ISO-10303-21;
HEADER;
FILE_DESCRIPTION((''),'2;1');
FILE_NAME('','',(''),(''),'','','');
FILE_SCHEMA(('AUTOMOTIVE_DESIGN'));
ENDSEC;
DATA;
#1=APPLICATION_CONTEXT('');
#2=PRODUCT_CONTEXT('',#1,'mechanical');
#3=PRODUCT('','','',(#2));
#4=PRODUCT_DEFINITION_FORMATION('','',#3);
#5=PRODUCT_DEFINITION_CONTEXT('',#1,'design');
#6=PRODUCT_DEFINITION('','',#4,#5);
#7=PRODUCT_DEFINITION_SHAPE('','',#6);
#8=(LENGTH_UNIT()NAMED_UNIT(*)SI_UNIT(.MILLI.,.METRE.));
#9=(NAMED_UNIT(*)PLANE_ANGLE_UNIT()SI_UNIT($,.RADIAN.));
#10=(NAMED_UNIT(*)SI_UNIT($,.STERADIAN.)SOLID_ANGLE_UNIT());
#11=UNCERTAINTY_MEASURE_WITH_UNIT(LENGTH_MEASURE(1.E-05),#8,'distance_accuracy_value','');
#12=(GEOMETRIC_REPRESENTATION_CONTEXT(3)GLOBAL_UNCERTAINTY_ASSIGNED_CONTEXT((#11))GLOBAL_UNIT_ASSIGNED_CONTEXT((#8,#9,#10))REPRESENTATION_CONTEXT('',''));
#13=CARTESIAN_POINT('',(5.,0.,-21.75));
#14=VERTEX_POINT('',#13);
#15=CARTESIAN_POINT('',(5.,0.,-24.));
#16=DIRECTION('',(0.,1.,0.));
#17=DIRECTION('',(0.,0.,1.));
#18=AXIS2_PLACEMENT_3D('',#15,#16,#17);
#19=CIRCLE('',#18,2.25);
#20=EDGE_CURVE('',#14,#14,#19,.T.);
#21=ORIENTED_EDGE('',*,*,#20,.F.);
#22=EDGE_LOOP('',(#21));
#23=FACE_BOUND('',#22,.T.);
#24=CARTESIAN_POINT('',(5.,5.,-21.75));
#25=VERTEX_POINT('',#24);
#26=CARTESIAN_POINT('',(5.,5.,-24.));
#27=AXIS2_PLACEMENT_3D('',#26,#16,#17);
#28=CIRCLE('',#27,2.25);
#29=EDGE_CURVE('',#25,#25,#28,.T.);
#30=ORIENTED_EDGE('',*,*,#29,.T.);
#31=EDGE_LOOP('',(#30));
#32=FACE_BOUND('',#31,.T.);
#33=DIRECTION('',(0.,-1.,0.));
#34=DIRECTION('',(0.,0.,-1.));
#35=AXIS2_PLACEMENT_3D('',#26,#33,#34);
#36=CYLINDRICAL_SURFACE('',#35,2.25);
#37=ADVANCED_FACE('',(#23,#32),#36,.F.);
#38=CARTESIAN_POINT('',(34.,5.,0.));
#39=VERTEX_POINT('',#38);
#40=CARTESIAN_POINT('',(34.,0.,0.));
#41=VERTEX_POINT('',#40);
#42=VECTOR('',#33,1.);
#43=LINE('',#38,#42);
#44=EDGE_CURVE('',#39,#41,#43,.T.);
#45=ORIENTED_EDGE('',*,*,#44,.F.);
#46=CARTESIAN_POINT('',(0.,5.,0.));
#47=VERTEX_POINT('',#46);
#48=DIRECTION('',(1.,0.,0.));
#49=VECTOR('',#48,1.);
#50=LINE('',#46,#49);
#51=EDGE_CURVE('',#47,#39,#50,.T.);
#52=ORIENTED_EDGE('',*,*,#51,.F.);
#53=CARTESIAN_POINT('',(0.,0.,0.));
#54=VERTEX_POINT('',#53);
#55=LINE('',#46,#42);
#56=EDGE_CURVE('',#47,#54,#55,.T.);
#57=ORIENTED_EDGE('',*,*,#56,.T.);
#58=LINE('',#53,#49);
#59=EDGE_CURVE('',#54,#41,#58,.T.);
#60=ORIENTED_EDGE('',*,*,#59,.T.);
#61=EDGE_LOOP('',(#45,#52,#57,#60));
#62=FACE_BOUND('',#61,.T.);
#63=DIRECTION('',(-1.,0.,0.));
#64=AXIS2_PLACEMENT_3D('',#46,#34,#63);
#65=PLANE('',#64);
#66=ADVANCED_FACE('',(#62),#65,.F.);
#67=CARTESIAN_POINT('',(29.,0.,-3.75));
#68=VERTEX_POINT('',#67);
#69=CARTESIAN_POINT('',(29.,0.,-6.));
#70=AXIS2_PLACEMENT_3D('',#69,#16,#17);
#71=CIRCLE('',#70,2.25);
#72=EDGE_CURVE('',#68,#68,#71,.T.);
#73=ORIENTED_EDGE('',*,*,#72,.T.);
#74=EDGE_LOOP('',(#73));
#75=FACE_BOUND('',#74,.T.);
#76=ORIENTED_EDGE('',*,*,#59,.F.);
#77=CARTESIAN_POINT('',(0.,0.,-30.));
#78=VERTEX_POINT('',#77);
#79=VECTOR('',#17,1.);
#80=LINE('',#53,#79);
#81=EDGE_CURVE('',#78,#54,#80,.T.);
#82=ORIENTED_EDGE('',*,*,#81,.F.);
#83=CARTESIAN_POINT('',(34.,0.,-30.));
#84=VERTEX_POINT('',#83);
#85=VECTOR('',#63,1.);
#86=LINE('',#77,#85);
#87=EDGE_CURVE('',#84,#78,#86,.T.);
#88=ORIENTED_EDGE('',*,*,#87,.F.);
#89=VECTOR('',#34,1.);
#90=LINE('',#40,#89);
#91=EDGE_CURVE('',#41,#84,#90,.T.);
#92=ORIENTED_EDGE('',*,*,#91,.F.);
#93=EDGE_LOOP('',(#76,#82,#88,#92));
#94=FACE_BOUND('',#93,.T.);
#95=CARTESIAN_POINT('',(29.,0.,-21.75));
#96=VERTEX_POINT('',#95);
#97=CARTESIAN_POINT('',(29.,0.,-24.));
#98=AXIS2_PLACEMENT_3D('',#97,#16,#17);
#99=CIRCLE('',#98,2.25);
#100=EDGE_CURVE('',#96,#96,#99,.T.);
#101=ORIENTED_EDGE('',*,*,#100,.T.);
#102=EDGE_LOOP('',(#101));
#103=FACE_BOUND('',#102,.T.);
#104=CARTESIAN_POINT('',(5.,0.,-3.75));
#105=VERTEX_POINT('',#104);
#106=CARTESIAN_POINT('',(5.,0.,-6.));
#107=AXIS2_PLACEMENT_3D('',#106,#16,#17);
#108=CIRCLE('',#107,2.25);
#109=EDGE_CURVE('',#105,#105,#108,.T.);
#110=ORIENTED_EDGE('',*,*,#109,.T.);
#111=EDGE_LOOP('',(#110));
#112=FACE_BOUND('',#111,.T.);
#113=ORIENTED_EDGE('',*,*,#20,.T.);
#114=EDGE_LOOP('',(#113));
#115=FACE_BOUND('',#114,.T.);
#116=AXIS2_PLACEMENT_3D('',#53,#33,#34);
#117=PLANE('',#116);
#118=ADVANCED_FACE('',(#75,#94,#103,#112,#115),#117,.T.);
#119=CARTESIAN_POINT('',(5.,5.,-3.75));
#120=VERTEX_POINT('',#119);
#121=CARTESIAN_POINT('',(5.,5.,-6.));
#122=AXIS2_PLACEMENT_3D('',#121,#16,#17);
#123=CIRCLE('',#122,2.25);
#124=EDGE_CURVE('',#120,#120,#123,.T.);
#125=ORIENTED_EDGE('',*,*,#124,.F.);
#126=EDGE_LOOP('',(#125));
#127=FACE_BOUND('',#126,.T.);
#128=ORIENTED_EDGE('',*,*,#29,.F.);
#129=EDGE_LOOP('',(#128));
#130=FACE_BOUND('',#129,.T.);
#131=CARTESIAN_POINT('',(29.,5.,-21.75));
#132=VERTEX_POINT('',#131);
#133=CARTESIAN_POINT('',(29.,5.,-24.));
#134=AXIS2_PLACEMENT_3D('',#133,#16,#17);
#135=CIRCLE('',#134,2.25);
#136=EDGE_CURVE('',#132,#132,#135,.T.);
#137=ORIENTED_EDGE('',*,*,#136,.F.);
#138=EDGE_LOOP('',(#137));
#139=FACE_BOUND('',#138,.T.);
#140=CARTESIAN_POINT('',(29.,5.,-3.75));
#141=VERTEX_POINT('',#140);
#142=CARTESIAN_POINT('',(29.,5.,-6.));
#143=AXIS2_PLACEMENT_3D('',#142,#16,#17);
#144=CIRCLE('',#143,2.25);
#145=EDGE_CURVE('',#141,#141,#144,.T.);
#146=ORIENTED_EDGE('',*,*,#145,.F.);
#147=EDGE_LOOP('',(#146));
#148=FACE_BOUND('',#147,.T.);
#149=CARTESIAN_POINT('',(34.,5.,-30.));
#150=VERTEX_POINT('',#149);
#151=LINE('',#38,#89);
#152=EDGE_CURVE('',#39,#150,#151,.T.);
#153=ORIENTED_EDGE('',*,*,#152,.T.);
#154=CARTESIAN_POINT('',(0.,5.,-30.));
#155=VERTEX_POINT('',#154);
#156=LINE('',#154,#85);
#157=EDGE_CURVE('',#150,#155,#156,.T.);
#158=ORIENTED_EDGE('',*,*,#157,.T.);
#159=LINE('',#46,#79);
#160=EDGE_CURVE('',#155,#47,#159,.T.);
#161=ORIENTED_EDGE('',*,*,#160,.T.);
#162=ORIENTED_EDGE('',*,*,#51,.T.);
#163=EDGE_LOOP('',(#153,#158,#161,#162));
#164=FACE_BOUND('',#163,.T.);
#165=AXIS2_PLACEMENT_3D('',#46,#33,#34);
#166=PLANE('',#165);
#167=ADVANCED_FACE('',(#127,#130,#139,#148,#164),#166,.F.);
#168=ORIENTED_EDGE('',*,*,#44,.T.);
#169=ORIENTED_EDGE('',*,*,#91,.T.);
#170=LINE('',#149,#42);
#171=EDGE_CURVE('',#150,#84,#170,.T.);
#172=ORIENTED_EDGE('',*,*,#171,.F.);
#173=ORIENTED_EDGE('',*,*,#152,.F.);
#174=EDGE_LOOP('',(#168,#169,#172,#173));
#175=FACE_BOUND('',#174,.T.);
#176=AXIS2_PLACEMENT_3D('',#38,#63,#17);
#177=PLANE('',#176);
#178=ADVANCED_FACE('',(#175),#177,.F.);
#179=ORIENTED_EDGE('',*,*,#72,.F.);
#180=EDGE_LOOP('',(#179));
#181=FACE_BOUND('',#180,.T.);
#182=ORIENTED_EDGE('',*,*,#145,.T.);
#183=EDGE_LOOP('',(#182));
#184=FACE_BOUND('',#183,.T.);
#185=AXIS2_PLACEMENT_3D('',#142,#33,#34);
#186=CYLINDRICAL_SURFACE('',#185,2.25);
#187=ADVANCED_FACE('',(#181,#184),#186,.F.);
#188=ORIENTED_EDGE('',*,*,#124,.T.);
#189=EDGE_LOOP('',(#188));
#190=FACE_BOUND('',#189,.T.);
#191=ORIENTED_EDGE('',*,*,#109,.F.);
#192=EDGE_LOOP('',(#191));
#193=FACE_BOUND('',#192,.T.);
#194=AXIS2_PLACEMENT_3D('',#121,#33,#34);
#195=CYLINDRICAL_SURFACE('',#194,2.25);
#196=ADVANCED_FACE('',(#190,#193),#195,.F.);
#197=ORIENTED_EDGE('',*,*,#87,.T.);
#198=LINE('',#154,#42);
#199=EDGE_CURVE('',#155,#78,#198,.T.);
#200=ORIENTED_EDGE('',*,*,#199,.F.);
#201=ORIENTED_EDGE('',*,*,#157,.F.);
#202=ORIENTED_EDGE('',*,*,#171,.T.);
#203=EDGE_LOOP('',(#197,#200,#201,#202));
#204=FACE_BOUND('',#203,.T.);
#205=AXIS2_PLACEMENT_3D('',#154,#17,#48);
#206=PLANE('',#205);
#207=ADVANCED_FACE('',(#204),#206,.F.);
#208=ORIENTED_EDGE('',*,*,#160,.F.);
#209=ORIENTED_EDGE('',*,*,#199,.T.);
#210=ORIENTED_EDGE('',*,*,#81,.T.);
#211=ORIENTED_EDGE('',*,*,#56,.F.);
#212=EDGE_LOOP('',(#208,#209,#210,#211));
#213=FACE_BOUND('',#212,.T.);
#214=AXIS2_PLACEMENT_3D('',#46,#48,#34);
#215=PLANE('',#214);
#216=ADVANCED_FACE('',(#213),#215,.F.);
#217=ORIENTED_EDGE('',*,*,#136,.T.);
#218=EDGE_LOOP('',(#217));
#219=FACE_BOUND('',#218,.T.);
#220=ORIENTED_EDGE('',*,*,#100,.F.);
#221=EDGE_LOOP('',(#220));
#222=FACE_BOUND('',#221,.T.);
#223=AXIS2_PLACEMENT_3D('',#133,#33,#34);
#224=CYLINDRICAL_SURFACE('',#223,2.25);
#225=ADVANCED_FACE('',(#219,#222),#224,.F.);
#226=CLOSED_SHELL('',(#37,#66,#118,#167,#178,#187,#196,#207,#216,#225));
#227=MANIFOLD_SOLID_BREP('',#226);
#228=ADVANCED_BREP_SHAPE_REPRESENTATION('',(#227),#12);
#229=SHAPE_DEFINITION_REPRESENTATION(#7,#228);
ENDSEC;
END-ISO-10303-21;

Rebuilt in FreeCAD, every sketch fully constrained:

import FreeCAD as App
import Part
import Sketcher

V = App.Vector
Q = App.Units.Quantity

doc = App.newDocument("Part")
body = doc.addObject("PartDesign::Body", "Body")

sketch1 = body.newObject("Sketcher::SketchObject", "Sketch")
sketch1.AttachmentSupport = (doc.getObject("XZ_Plane"), [""])
sketch1.MapMode = "FlatFace"
sketch1.addGeometry(Part.LineSegment(V(0, -30, 0), V(0, 0, 0)), False)
sketch1.addGeometry(Part.LineSegment(V(0, 0, 0), V(34, 0, 0)), False)
sketch1.addGeometry(Part.LineSegment(V(34, 0, 0), V(34, -30, 0)), False)
sketch1.addGeometry(Part.LineSegment(V(34, -30, 0), V(0, -30, 0)), False)
sketch1.addGeometry(Part.Circle(V(5, -6, 0), V(0, 0, 1), 2.25), False)
sketch1.addGeometry(Part.Circle(V(29, -6, 0), V(0, 0, 1), 2.25), False)
sketch1.addGeometry(Part.Circle(V(5, -24, 0), V(0, 0, 1), 2.25), False)
sketch1.addGeometry(Part.Circle(V(29, -24, 0), V(0, 0, 1), 2.25), False)
sketch1.addConstraint(Sketcher.Constraint("Coincident", 0, 2, 1, 1))
sketch1.addConstraint(Sketcher.Constraint("Coincident", 1, 2, 2, 1))
sketch1.addConstraint(Sketcher.Constraint("Coincident", 2, 2, 3, 1))
sketch1.addConstraint(Sketcher.Constraint("Coincident", 3, 2, 0, 1))
sketch1.addConstraint(Sketcher.Constraint("Vertical", 0))
sketch1.addConstraint(Sketcher.Constraint("Horizontal", 1))
sketch1.addConstraint(Sketcher.Constraint("Vertical", 2))
sketch1.addConstraint(Sketcher.Constraint("Horizontal", 3))
sketch1.addConstraint(Sketcher.Constraint("Coincident", 0, 2, -1, 1))
sketch1.addConstraint(Sketcher.Constraint("Equal", 4, 5))
sketch1.addConstraint(Sketcher.Constraint("Equal", 5, 6))
sketch1.addConstraint(Sketcher.Constraint("Equal", 6, 7))
sketch1.addConstraint(Sketcher.Constraint("Horizontal", 4, 3, 5, 3))
sketch1.addConstraint(Sketcher.Constraint("Horizontal", 6, 3, 7, 3))
sketch1.addConstraint(Sketcher.Constraint("Vertical", 4, 3, 6, 3))
sketch1.addConstraint(Sketcher.Constraint("Vertical", 5, 3, 7, 3))
sketch1.addConstraint(Sketcher.Constraint("Diameter", 4, Q("4.5 mm")))
sketch1.addConstraint(Sketcher.Constraint("DistanceX", 1, 1, 1, 2, Q("34 mm")))
sketch1.addConstraint(Sketcher.Constraint("DistanceY", 0, 1, 0, 2, Q("30 mm")))
sketch1.addConstraint(Sketcher.Constraint("DistanceX", -1, 1, 4, 3, Q("5 mm")))
sketch1.addConstraint(Sketcher.Constraint("DistanceY", 4, 3, -1, 1, Q("6 mm")))
sketch1.addConstraint(Sketcher.Constraint("DistanceX", -1, 1, 5, 3, Q("29 mm")))
sketch1.addConstraint(Sketcher.Constraint("DistanceY", 6, 3, -1, 1, Q("24 mm")))
pad1 = body.newObject("PartDesign::Pad", "Pad")
pad1.Profile = sketch1
pad1.Length = 5
pad1.Reversed = True

doc.recompute()
